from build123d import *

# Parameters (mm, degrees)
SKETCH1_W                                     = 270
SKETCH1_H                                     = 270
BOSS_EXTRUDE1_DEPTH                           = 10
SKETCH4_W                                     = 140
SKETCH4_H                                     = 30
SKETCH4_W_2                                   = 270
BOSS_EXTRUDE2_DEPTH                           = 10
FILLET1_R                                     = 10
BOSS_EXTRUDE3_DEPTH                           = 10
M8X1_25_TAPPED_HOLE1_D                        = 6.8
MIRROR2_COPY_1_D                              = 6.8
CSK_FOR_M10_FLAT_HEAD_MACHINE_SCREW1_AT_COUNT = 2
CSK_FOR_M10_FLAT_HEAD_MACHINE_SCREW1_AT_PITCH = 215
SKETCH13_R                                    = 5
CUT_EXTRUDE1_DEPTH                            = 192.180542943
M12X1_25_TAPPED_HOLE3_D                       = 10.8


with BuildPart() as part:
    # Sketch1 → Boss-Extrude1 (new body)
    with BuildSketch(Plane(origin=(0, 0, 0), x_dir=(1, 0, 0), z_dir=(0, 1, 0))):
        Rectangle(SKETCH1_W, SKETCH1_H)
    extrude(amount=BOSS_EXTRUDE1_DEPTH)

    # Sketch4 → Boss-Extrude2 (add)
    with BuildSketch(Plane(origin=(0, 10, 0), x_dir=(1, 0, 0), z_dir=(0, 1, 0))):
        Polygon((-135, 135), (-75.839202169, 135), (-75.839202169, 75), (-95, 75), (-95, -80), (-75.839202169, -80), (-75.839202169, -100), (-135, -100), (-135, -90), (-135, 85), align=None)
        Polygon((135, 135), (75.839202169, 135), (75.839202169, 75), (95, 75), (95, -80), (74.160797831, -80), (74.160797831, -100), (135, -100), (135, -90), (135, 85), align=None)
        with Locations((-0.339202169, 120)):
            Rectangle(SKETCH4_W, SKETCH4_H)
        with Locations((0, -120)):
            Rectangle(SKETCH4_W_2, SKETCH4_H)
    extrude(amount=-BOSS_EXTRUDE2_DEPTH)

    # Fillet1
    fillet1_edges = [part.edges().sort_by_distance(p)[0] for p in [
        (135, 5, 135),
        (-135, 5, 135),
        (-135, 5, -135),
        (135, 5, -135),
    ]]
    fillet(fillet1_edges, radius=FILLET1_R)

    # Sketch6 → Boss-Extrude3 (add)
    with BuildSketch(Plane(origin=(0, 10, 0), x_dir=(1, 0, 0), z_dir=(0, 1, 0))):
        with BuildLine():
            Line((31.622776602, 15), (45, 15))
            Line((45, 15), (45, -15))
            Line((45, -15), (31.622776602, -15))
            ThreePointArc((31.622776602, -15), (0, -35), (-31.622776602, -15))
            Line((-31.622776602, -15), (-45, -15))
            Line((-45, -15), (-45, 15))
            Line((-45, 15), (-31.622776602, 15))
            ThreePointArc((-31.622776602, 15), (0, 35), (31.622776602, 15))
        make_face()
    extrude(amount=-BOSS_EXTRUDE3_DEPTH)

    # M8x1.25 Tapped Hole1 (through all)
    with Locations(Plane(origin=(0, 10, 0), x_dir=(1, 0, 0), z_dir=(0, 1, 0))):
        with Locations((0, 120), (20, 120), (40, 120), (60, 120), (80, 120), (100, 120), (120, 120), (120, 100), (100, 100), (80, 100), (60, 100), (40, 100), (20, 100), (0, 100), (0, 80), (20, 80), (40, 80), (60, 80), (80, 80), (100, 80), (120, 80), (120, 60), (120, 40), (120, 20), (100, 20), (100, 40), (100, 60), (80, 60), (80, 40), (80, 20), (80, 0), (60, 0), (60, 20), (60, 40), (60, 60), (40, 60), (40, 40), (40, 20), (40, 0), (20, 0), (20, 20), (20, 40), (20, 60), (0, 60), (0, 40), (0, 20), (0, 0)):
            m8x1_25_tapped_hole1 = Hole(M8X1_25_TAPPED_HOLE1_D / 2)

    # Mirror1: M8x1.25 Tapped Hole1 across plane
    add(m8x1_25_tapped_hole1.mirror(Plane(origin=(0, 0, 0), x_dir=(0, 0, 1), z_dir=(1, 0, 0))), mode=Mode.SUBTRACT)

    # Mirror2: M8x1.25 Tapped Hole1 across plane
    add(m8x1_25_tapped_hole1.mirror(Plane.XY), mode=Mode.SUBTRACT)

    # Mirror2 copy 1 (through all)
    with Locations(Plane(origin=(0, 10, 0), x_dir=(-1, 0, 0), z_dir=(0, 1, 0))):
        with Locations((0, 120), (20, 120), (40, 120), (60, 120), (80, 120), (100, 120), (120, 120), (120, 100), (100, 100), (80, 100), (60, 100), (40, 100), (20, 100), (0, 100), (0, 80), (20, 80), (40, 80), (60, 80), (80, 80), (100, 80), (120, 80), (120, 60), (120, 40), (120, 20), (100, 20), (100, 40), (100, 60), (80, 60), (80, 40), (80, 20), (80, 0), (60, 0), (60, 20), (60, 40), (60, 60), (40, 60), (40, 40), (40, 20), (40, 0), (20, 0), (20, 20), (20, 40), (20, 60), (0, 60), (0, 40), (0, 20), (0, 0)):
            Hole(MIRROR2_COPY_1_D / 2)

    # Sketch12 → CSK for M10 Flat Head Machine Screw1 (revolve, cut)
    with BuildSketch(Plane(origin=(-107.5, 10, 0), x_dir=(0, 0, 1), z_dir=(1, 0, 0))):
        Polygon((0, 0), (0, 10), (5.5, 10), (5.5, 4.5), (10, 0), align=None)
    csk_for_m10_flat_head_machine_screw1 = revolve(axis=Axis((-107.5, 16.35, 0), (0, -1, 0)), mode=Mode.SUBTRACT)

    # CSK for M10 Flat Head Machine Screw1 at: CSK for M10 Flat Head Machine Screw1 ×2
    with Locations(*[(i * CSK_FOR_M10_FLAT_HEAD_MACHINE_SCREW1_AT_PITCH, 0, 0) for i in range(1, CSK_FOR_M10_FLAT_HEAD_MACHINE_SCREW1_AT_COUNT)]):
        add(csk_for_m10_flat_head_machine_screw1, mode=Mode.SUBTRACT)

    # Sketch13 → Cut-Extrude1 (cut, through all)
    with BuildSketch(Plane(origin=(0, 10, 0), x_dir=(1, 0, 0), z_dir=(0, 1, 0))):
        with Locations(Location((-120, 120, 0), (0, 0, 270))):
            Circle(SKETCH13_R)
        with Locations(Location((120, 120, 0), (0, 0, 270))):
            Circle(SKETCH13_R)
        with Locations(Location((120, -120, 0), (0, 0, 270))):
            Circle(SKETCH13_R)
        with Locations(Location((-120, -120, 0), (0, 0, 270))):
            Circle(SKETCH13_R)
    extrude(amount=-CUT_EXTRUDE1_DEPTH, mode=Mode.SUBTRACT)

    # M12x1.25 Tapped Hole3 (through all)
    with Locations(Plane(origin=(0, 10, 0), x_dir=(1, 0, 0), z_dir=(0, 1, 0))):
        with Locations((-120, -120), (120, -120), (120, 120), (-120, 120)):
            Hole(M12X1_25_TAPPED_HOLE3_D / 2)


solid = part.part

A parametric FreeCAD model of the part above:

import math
import FreeCAD as App
import Part
import Sketcher

V = App.Vector


def edges_at(feature, points):
    """Names of the edges that pass closest to the given points."""
    edges = feature.Shape.Edges
    near = lambda p: min(range(len(edges)), key=lambda i: edges[i].distToShape(Part.Vertex(*p))[0])
    return sorted({f"Edge{near(p) + 1}" for p in points})


def add_polygon(sketch, points):
    """Adds a closed chain of lines whose ends are joined by coincident constraints."""
    first, n = sketch.GeometryCount, len(points)
    for a, b in zip(points, points[1:] + points[:1]):
        sketch.addGeometry(Part.LineSegment(App.Vector(*a, 0), App.Vector(*b, 0)), False)
    for i in range(n):
        sketch.addConstraint(Sketcher.Constraint("Coincident", first + i, 2, first + (i + 1) % n, 1))

doc = App.newDocument("Part")
body = doc.addObject("PartDesign::Body", "Body")

# Sketch on XZ plane
sketch1 = body.newObject("Sketcher::SketchObject", "Sketch")
sketch1.AttachmentSupport = (doc.getObject("XZ_Plane"), [""])
sketch1.MapMode = "FlatFace"
add_polygon(sketch1, [(-135, -135), (-135, 135), (135, 135), (135, -135)])  # lines 0-3
sketch1.addConstraint([
    Sketcher.Constraint("Vertical", 0),
    Sketcher.Constraint("Horizontal", 1),
    Sketcher.Constraint("Vertical", 2),
    Sketcher.Constraint("Horizontal", 3),
    Sketcher.Constraint("Symmetric", 0, 2, 2, 2, -1, 1),
    Sketcher.Constraint("Equal", 3, 0),
    Sketcher.Constraint("DistanceX", 1, 1, 1, 2, 270.0),
])
pad1 = body.newObject("PartDesign::Pad", "Pad")
pad1.Profile = sketch1
pad1.Length = 10
pad1.Reversed = True

# Sketch on XZ plane
sketch2 = body.newObject("Sketcher::SketchObject", "Sketch001")
sketch2.AttachmentSupport = (doc.getObject("XZ_Plane"), [""])
sketch2.MapMode = "FlatFace"
sketch2.AttachmentOffset = App.Placement(V(0, 0, -10), App.Rotation())
add_polygon(sketch2, [(-76, -135), (-135, -135), (-135, 100), (-76, 100), (-76, 80), (-95, 80), (-95, -75), (-76, -75)])  # lines 0-7
add_polygon(sketch2, [(135, -135), (76, -135), (76, -75), (95, -75), (95, 80), (74, 80), (74, 100), (135, 100)])  # lines 8-15
add_polygon(sketch2, [(-70, -135), (-70, -105), (70, -105), (70, -135)])  # lines 16-19
add_polygon(sketch2, [(-135, 105), (-135, 135), (135, 135), (135, 105)])  # lines 20-23
sketch2.addConstraint([
    Sketcher.Constraint("Horizontal", 0),
    Sketcher.Constraint("Vertical", 1),
    Sketcher.Constraint("Horizontal", 2),
    Sketcher.Constraint("Vertical", 3),
    Sketcher.Constraint("Horizontal", 4),
    Sketcher.Constraint("Vertical", 5),
    Sketcher.Constraint("Horizontal", 6),
    Sketcher.Constraint("Vertical", 7),
    Sketcher.Constraint("Horizontal", 8),
    Sketcher.Constraint("Vertical", 9),
    Sketcher.Constraint("Horizontal", 10),
    Sketcher.Constraint("Vertical", 11),
    Sketcher.Constraint("Horizontal", 12),
    Sketcher.Constraint("Vertical", 13),
    Sketcher.Constraint("Horizontal", 14),
    Sketcher.Constraint("Vertical", 15),
    Sketcher.Constraint("Vertical", 16),
    Sketcher.Constraint("Horizontal", 17),
    Sketcher.Constraint("Vertical", 18),
    Sketcher.Constraint("Horizontal", 19),
    Sketcher.Constraint("Vertical", 20),
    Sketcher.Constraint("Horizontal", 21),
    Sketcher.Constraint("Vertical", 22),
    Sketcher.Constraint("Horizontal", 23),
    Sketcher.Constraint("Symmetric", 15, 2, 20, 2, -1, 1),
    Sketcher.Constraint("Symmetric", 0, 2, 21, 2, -1, 1),
    Sketcher.Constraint("Symmetric", 6, 2, 9, 2, -2),
    Sketcher.Constraint("Symmetric", 4, 2, 11, 2, -2),
    Sketcher.Constraint("Symmetric", 1, 2, 14, 2, -2),
    Sketcher.Constraint("Horizontal", 15, 2, 18, 2),
    Sketcher.Constraint("Vertical", 3, 2, 6, 2),
    Sketcher.Constraint("Equal", 18, 20),
    Sketcher.Constraint("DistanceX", 17, 1, 17, 2, 140.0),
    Sketcher.Constraint("DistanceX", 21, 1, 21, 2, 270.0),
    Sketcher.Constraint("DistanceY", 1, 1, 1, 2, 235.0),
    Sketcher.Constraint("DistanceY", 3, 2, 3, 1, 20.0),
    Sketcher.Constraint("DistanceY", 5, 2, 5, 1, 155.0),
    Sketcher.Constraint("DistanceY", 16, 1, 16, 2, 30.0),
    Sketcher.Constraint("DistanceY", 0, 2, -1, 1, 135.0),
    Sketcher.Constraint("DistanceX", 4, 2, -1, 1, 95.0),
    Sketcher.Constraint("DistanceX", 3, 2, 12, 2, 150.0),
    Sketcher.Constraint("DistanceX", 6, 2, 16, 2, 5.5),
    Sketcher.Constraint("DistanceX", 0, 2, 0, 1, 59.160798),
])
pad2 = body.newObject("PartDesign::Pad", "Pad001")
pad2.Profile = sketch2
pad2.Length = 10
doc.recompute()

fillet = body.newObject("PartDesign::Fillet", "Fillet")
fillet.Base = (pad2, edges_at(pad2, [
    (135, 5, 135),
    (-135, 5, 135),
    (-135, 5, -135),
    (135, 5, -135),
]))
fillet.Radius = 10

# Sketch on XZ plane
sketch3 = body.newObject("Sketcher::SketchObject", "Sketch002")
sketch3.AttachmentSupport = (doc.getObject("XZ_Plane"), [""])
sketch3.MapMode = "FlatFace"
sketch3.AttachmentOffset = App.Placement(V(0, 0, -10), App.Rotation())
sketch3.addGeometry([
    Part.LineSegment(V(45, -15, 0), V(32, -15, 0)),  # 0
    Part.ArcOfCircle(Part.Circle(V(0, 0, 0), V(0, 0, 1), 35), math.radians(-155), math.radians(-25)),  # 1
    Part.LineSegment(V(-32, -15, 0), V(-45, -15, 0)),  # 2
    Part.LineSegment(V(-45, -15, 0), V(-45, 15, 0)),  # 3
    Part.LineSegment(V(-45, 15, 0), V(-32, 15, 0)),  # 4
    Part.ArcOfCircle(Part.Circle(V(0, 0, 0), V(0, 0, 1), 35), math.radians(25), math.radians(155)),  # 5
    Part.LineSegment(V(32, 15, 0), V(45, 15, 0)),  # 6
    Part.LineSegment(V(45, 15, 0), V(45, -15, 0)),  # 7
], False)
sketch3.addConstraint([
    Sketcher.Constraint("Coincident", 0, 2, 1, 2),
    Sketcher.Constraint("Coincident", 1, 1, 2, 1),
    Sketcher.Constraint("Coincident", 2, 2, 3, 1),
    Sketcher.Constraint("Coincident", 3, 2, 4, 1),
    Sketcher.Constraint("Coincident", 4, 2, 5, 2),
    Sketcher.Constraint("Coincident", 5, 1, 6, 1),
    Sketcher.Constraint("Coincident", 6, 2, 7, 1),
    Sketcher.Constraint("Coincident", 7, 2, 0, 1),
    Sketcher.Constraint("Horizontal", 0),
    Sketcher.Constraint("Horizontal", 2),
    Sketcher.Constraint("Vertical", 3),
    Sketcher.Constraint("Horizontal", 4),
    Sketcher.Constraint("Horizontal", 6),
    Sketcher.Constraint("Vertical", 7),
    Sketcher.Constraint("Coincident", 1, 3, -1, 1),
    Sketcher.Constraint("Coincident", 5, 3, -1, 1),
    Sketcher.Constraint("Equal", 1, 5),
    Sketcher.Constraint("Symmetric", 2, 2, 6, 2, -1, 1),
    Sketcher.Constraint("Horizontal", 0, 2, 1, 1),
    Sketcher.Constraint("Horizontal", 4, 2, 5, 1),
    Sketcher.Constraint("Radius", 1, 35.0),
    Sketcher.Constraint("DistanceY", 3, 1, 3, 2, 30.0),
    Sketcher.Constraint("DistanceX", 2, 2, -1, 1, 45.0),
])
pad3 = body.newObject("PartDesign::Pad", "Pad002")
pad3.Profile = sketch3
pad3.Length = 10

# Sketch on XZ plane
sketch4 = body.newObject("Sketcher::SketchObject", "Sketch003")
sketch4.AttachmentSupport = (doc.getObject("XZ_Plane"), [""])
sketch4.MapMode = "FlatFace"
sketch4.AttachmentOffset = App.Placement(V(0, 0, -10), App.Rotation())
sketch4.addGeometry([
    Part.Circle(V(0, -120, 0), V(0, 0, 1), 3.4),  # 0
    Part.Circle(V(20, -120, 0), V(0, 0, 1), 3.4),  # 1
    Part.Circle(V(40, -120, 0), V(0, 0, 1), 3.4),  # 2
    Part.Circle(V(60, -120, 0), V(0, 0, 1), 3.4),  # 3
    Part.Circle(V(80, -120, 0), V(0, 0, 1), 3.4),  # 4
    Part.Circle(V(100, -120, 0), V(0, 0, 1), 3.4),  # 5
    Part.Circle(V(120, -120, 0), V(0, 0, 1), 3.4),  # 6
    Part.Circle(V(120, -100, 0), V(0, 0, 1), 3.4),  # 7
    Part.Circle(V(100, -100, 0), V(0, 0, 1), 3.4),  # 8
    Part.Circle(V(80, -100, 0), V(0, 0, 1), 3.4),  # 9
    Part.Circle(V(60, -100, 0), V(0, 0, 1), 3.4),  # 10
    Part.Circle(V(40, -100, 0), V(0, 0, 1), 3.4),  # 11
    Part.Circle(V(20, -100, 0), V(0, 0, 1), 3.4),  # 12
    Part.Circle(V(0, -100, 0), V(0, 0, 1), 3.4),  # 13
    Part.Circle(V(0, -80, 0), V(0, 0, 1), 3.4),  # 14
    Part.Circle(V(20, -80, 0), V(0, 0, 1), 3.4),  # 15
    Part.Circle(V(40, -80, 0), V(0, 0, 1), 3.4),  # 16
    Part.Circle(V(60, -80, 0), V(0, 0, 1), 3.4),  # 17
    Part.Circle(V(80, -80, 0), V(0, 0, 1), 3.4),  # 18
    Part.Circle(V(100, -80, 0), V(0, 0, 1), 3.4),  # 19
    Part.Circle(V(120, -80, 0), V(0, 0, 1), 3.4),  # 20
    Part.Circle(V(120, -60, 0), V(0, 0, 1), 3.4),  # 21
    Part.Circle(V(120, -40, 0), V(0, 0, 1), 3.4),  # 22
    Part.Circle(V(120, -20, 0), V(0, 0, 1), 3.4),  # 23
    Part.Circle(V(100, -20, 0), V(0, 0, 1), 3.4),  # 24
    Part.Circle(V(100, -40, 0), V(0, 0, 1), 3.4),  # 25
    Part.Circle(V(100, -60, 0), V(0, 0, 1), 3.4),  # 26
    Part.Circle(V(80, -60, 0), V(0, 0, 1), 3.4),  # 27
    Part.Circle(V(80, -40, 0), V(0, 0, 1), 3.4),  # 28
    Part.Circle(V(80, -20, 0), V(0, 0, 1), 3.4),  # 29
    Part.Circle(V(80, 0, 0), V(0, 0, 1), 3.4),  # 30
    Part.Circle(V(60, 0, 0), V(0, 0, 1), 3.4),  # 31
    Part.Circle(V(60, -20, 0), V(0, 0, 1), 3.4),  # 32
    Part.Circle(V(60, -40, 0), V(0, 0, 1), 3.4),  # 33
    Part.Circle(V(60, -60, 0), V(0, 0, 1), 3.4),  # 34
    Part.Circle(V(40, -60, 0), V(0, 0, 1), 3.4),  # 35
    Part.Circle(V(40, -40, 0), V(0, 0, 1), 3.4),  # 36
    Part.Circle(V(40, -20, 0), V(0, 0, 1), 3.4),  # 37
    Part.Circle(V(40, 0, 0), V(0, 0, 1), 3.4),  # 38
    Part.Circle(V(20, 0, 0), V(0, 0, 1), 3.4),  # 39
    Part.Circle(V(20, -20, 0), V(0, 0, 1), 3.4),  # 40
    Part.Circle(V(20, -40, 0), V(0, 0, 1), 3.4),  # 41
    Part.Circle(V(20, -60, 0), V(0, 0, 1), 3.4),  # 42
    Part.Circle(V(0, -60, 0), V(0, 0, 1), 3.4),  # 43
    Part.Circle(V(0, -40, 0), V(0, 0, 1), 3.4),  # 44
    Part.Circle(V(0, -20, 0), V(0, 0, 1), 3.4),  # 45
    Part.Circle(V(0, 0, 0), V(0, 0, 1), 3.4),  # 46
], False)
sketch4.addConstraint([
    Sketcher.Constraint("Coincident", 46, 3, -1, 1),
    Sketcher.Constraint("Equal", 0, 1),
    Sketcher.Constraint("Equal", 1, 2),
    Sketcher.Constraint("Equal", 2, 3),
    Sketcher.Constraint("Equal", 3, 4),
    Sketcher.Constraint("Equal", 4, 5),
    Sketcher.Constraint("Equal", 5, 6),
    Sketcher.Constraint("Equal", 6, 7),
    Sketcher.Constraint("Equal", 7, 8),
    Sketcher.Constraint("Equal", 8, 9),
    Sketcher.Constraint("Equal", 9, 10),
    Sketcher.Constraint("Equal", 10, 11),
    Sketcher.Constraint("Equal", 11, 12),
    Sketcher.Constraint("Equal", 12, 13),
    Sketcher.Constraint("Equal", 13, 14),
    Sketcher.Constraint("Equal", 14, 15),
    Sketcher.Constraint("Equal", 15, 16),
    Sketcher.Constraint("Equal", 16, 17),
    Sketcher.Constraint("Equal", 17, 18),
    Sketcher.Constraint("Equal", 18, 19),
    Sketcher.Constraint("Equal", 19, 20),
    Sketcher.Constraint("Equal", 20, 21),
    Sketcher.Constraint("Equal", 21, 22),
    Sketcher.Constraint("Equal", 22, 23),
    Sketcher.Constraint("Equal", 23, 24),
    Sketcher.Constraint("Equal", 24, 25),
    Sketcher.Constraint("Equal", 25, 26),
    Sketcher.Constraint("Equal", 26, 27),
    Sketcher.Constraint("Equal", 27, 28),
    Sketcher.Constraint("Equal", 28, 29),
    Sketcher.Constraint("Equal", 29, 30),
    Sketcher.Constraint("Equal", 30, 31),
    Sketcher.Constraint("Equal", 31, 32),
    Sketcher.Constraint("Equal", 32, 33),
    Sketcher.Constraint("Equal", 33, 34),
    Sketcher.Constraint("Equal", 34, 35),
    Sketcher.Constraint("Equal", 35, 36),
    Sketcher.Constraint("Equal", 36, 37),
    Sketcher.Constraint("Equal", 37, 38),
    Sketcher.Constraint("Equal", 38, 39),
    Sketcher.Constraint("Equal", 39, 40),
    Sketcher.Constraint("Equal", 40, 41),
    Sketcher.Constraint("Equal", 41, 42),
    Sketcher.Constraint("Equal", 42, 43),
    Sketcher.Constraint("Equal", 43, 44),
    Sketcher.Constraint("Equal", 44, 45),
    Sketcher.Constraint("Equal", 45, 46),
    Sketcher.Constraint("PointOnObject", 0, 3, -2),
    Sketcher.Constraint("PointOnObject", 13, 3, -2),
    Sketcher.Constraint("PointOnObject", 14, 3, -2),
    Sketcher.Constraint("PointOnObject", 30, 3, -1),
    Sketcher.Constraint("PointOnObject", 31, 3, -1),
    Sketcher.Constraint("PointOnObject", 38, 3, -1),
    Sketcher.Constraint("PointOnObject", 39, 3, -1),
    Sketcher.Constraint("PointOnObject", 43, 3, -2),
    Sketcher.Constraint("PointOnObject", 44, 3, -2),
    Sketcher.Constraint("PointOnObject", 45, 3, -2),
    Sketcher.Constraint("Horizontal", 0, 3, 1, 3),
    Sketcher.Constraint("Horizontal", 1, 3, 2, 3),
    Sketcher.Constraint("Horizontal", 2, 3, 3, 3),
    Sketcher.Constraint("Horizontal", 3, 3, 4, 3),
    Sketcher.Constraint("Horizontal", 4, 3, 5, 3),
    Sketcher.Constraint("Horizontal", 5, 3, 6, 3),
    Sketcher.Constraint("Horizontal", 7, 3, 8, 3),
    Sketcher.Constraint("Horizontal", 8, 3, 9, 3),
    Sketcher.Constraint("Horizontal", 9, 3, 10, 3),
    Sketcher.Constraint("Horizontal", 10, 3, 11, 3),
    Sketcher.Constraint("Horizontal", 11, 3, 12, 3),
    Sketcher.Constraint("Horizontal", 12, 3, 13, 3),
    Sketcher.Constraint("Horizontal", 14, 3, 15, 3),
    Sketcher.Constraint("Horizontal", 15, 3, 16, 3),
    Sketcher.Constraint("Horizontal", 16, 3, 17, 3),
    Sketcher.Constraint("Horizontal", 17, 3, 18, 3),
    Sketcher.Constraint("Horizontal", 18, 3, 19, 3),
    Sketcher.Constraint("Horizontal", 19, 3, 20, 3),
    Sketcher.Constraint("Horizontal", 23, 3, 24, 3),
    Sketcher.Constraint("Horizontal", 22, 3, 25, 3),
    Sketcher.Constraint("Horizontal", 21, 3, 26, 3),
    Sketcher.Constraint("Horizontal", 26, 3, 27, 3),
    Sketcher.Constraint("Horizontal", 25, 3, 28, 3),
    Sketcher.Constraint("Horizontal", 24, 3, 29, 3),
    Sketcher.Constraint("Horizontal", 29, 3, 32, 3),
    Sketcher.Constraint("Horizontal", 28, 3, 33, 3),
    Sketcher.Constraint("Horizontal", 27, 3, 34, 3),
    Sketcher.Constraint("Horizontal", 34, 3, 35, 3),
    Sketcher.Constraint("Horizontal", 33, 3, 36, 3),
    Sketcher.Constraint("Horizontal", 32, 3, 37, 3),
    Sketcher.Constraint("Horizontal", 37, 3, 40, 3),
    Sketcher.Constraint("Horizontal", 36, 3, 41, 3),
    Sketcher.Constraint("Horizontal", 35, 3, 42, 3),
    Sketcher.Constraint("Horizontal", 42, 3, 43, 3),
    Sketcher.Constraint("Horizontal", 41, 3, 44, 3),
    Sketcher.Constraint("Horizontal", 40, 3, 45, 3),
    Sketcher.Constraint("Vertical", 6, 3, 7, 3),
    Sketcher.Constraint("Vertical", 5, 3, 8, 3),
    Sketcher.Constraint("Vertical", 4, 3, 9, 3),
    Sketcher.Constraint("Vertical", 3, 3, 10, 3),
    Sketcher.Constraint("Vertical", 2, 3, 11, 3),
    Sketcher.Constraint("Vertical", 1, 3, 12, 3),
    Sketcher.Constraint("Vertical", 12, 3, 15, 3),
    Sketcher.Constraint("Vertical", 11, 3, 16, 3),
    Sketcher.Constraint("Vertical", 10, 3, 17, 3),
    Sketcher.Constraint("Vertical", 9, 3, 18, 3),
    Sketcher.Constraint("Vertical", 8, 3, 19, 3),
    Sketcher.Constraint("Vertical", 7, 3, 20, 3),
    Sketcher.Constraint("Vertical", 20, 3, 21, 3),
    Sketcher.Constraint("Vertical", 21, 3, 22, 3),
    Sketcher.Constraint("Vertical", 22, 3, 23, 3),
    Sketcher.Constraint("Vertical", 19, 3, 24, 3),
    Sketcher.Constraint("Vertical", 24, 3, 25, 3),
    Sketcher.Constraint("Vertical", 25, 3, 26, 3),
    Sketcher.Constraint("Vertical", 18, 3, 27, 3),
    Sketcher.Constraint("Vertical", 27, 3, 28, 3),
    Sketcher.Constraint("Vertical", 28, 3, 29, 3),
    Sketcher.Constraint("Vertical", 29, 3, 30, 3),
    Sketcher.Constraint("Vertical", 17, 3, 31, 3),
    Sketcher.Constraint("Vertical", 31, 3, 32, 3),
    Sketcher.Constraint("Vertical", 32, 3, 33, 3),
    Sketcher.Constraint("Vertical", 33, 3, 34, 3),
    Sketcher.Constraint("Vertical", 16, 3, 35, 3),
    Sketcher.Constraint("Vertical", 35, 3, 36, 3),
    Sketcher.Constraint("Vertical", 36, 3, 37, 3),
    Sketcher.Constraint("Vertical", 37, 3, 38, 3),
    Sketcher.Constraint("Vertical", 15, 3, 39, 3),
    Sketcher.Constraint("Vertical", 39, 3, 40, 3),
    Sketcher.Constraint("Vertical", 40, 3, 41, 3),
    Sketcher.Constraint("Vertical", 41, 3, 42, 3),
    Sketcher.Constraint("Diameter", 0, 6.8),
    Sketcher.Constraint("DistanceY", 0, 3, -1, 1, 120.0),
    Sketcher.Constraint("DistanceX", -1, 1, 1, 3, 20.0),
    Sketcher.Constraint("DistanceX", -1, 1, 2, 3, 40.0),
    Sketcher.Constraint("DistanceX", -1, 1, 3, 3, 60.0),
    Sketcher.Constraint("DistanceX", -1, 1, 4, 3, 80.0),
    Sketcher.Constraint("DistanceX", -1, 1, 5, 3, 100.0),
    Sketcher.Constraint("DistanceX", -1, 1, 6, 3, 120.0),
    Sketcher.Constraint("DistanceY", 7, 3, -1, 1, 100.0),
    Sketcher.Constraint("DistanceY", 14, 3, -1, 1, 80.0),
    Sketcher.Constraint("DistanceY", 21, 3, -1, 1, 60.0),
    Sketcher.Constraint("DistanceY", 22, 3, -1, 1, 40.0),
    Sketcher.Constraint("DistanceY", 23, 3, -1, 1, 20.0),
])
doc.recompute()
hole = body.newObject("PartDesign::Hole", "Hole")
hole.Profile = sketch4
hole.ThreadType = "None"
hole.Diameter = 6.8
hole.DepthType = "ThroughAll"
hole.Reversed = True
doc.recompute()

mirrored = body.newObject("PartDesign::Mirrored", "Mirrored")
mirrored.Originals = [hole]
mirrored.MirrorPlane = (doc.getObject("YZ_Plane"), [""])
body.Tip = mirrored
doc.recompute()

mirrored2 = body.newObject("PartDesign::Mirrored", "Mirrored001")
mirrored2.Originals = [hole]
mirrored2.MirrorPlane = (doc.getObject("XY_Plane"), [""])
body.Tip = mirrored2

# Sketch on XZ plane
sketch5 = body.newObject("Sketcher::SketchObject", "Sketch004")
sketch5.AttachmentSupport = (doc.getObject("XZ_Plane"), [""])
sketch5.MapMode = "FlatFace"
sketch5.AttachmentOffset = App.Placement(V(0, 0, -10), App.Rotation())
sketch5.addGeometry([
    Part.Circle(V(0, 120, 0), V(0, 0, 1), 3.4),  # 0
    Part.Circle(V(-20, 120, 0), V(0, 0, 1), 3.4),  # 1
    Part.Circle(V(-40, 120, 0), V(0, 0, 1), 3.4),  # 2
    Part.Circle(V(-60, 120, 0), V(0, 0, 1), 3.4),  # 3
    Part.Circle(V(-80, 120, 0), V(0, 0, 1), 3.4),  # 4
    Part.Circle(V(-100, 120, 0), V(0, 0, 1), 3.4),  # 5
    Part.Circle(V(-120, 120, 0), V(0, 0, 1), 3.4),  # 6
    Part.Circle(V(-120, 100, 0), V(0, 0, 1), 3.4),  # 7
    Part.Circle(V(-100, 100, 0), V(0, 0, 1), 3.4),  # 8
    Part.Circle(V(-80, 100, 0), V(0, 0, 1), 3.4),  # 9
    Part.Circle(V(-60, 100, 0), V(0, 0, 1), 3.4),  # 10
    Part.Circle(V(-40, 100, 0), V(0, 0, 1), 3.4),  # 11
    Part.Circle(V(-20, 100, 0), V(0, 0, 1), 3.4),  # 12
    Part.Circle(V(0, 100, 0), V(0, 0, 1), 3.4),  # 13
    Part.Circle(V(0, 80, 0), V(0, 0, 1), 3.4),  # 14
    Part.Circle(V(-20, 80, 0), V(0, 0, 1), 3.4),  # 15
    Part.Circle(V(-40, 80, 0), V(0, 0, 1), 3.4),  # 16
    Part.Circle(V(-60, 80, 0), V(0, 0, 1), 3.4),  # 17
    Part.Circle(V(-80, 80, 0), V(0, 0, 1), 3.4),  # 18
    Part.Circle(V(-100, 80, 0), V(0, 0, 1), 3.4),  # 19
    Part.Circle(V(-120, 80, 0), V(0, 0, 1), 3.4),  # 20
    Part.Circle(V(-120, 60, 0), V(0, 0, 1), 3.4),  # 21
    Part.Circle(V(-120, 40, 0), V(0, 0, 1), 3.4),  # 22
    Part.Circle(V(-120, 20, 0), V(0, 0, 1), 3.4),  # 23
    Part.Circle(V(-100, 20, 0), V(0, 0, 1), 3.4),  # 24
    Part.Circle(V(-100, 40, 0), V(0, 0, 1), 3.4),  # 25
    Part.Circle(V(-100, 60, 0), V(0, 0, 1), 3.4),  # 26
    Part.Circle(V(-80, 60, 0), V(0, 0, 1), 3.4),  # 27
    Part.Circle(V(-80, 40, 0), V(0, 0, 1), 3.4),  # 28
    Part.Circle(V(-80, 20, 0), V(0, 0, 1), 3.4),  # 29
    Part.Circle(V(-80, 0, 0), V(0, 0, 1), 3.4),  # 30
    Part.Circle(V(-60, 0, 0), V(0, 0, 1), 3.4),  # 31
    Part.Circle(V(-60, 20, 0), V(0, 0, 1), 3.4),  # 32
    Part.Circle(V(-60, 40, 0), V(0, 0, 1), 3.4),  # 33
    Part.Circle(V(-60, 60, 0), V(0, 0, 1), 3.4),  # 34
    Part.Circle(V(-40, 60, 0), V(0, 0, 1), 3.4),  # 35
    Part.Circle(V(-40, 40, 0), V(0, 0, 1), 3.4),  # 36
    Part.Circle(V(-40, 20, 0), V(0, 0, 1), 3.4),  # 37
    Part.Circle(V(-40, 0, 0), V(0, 0, 1), 3.4),  # 38
    Part.Circle(V(-20, 0, 0), V(0, 0, 1), 3.4),  # 39
    Part.Circle(V(-20, 20, 0), V(0, 0, 1), 3.4),  # 40
    Part.Circle(V(-20, 40, 0), V(0, 0, 1), 3.4),  # 41
    Part.Circle(V(-20, 60, 0), V(0, 0, 1), 3.4),  # 42
    Part.Circle(V(0, 60, 0), V(0, 0, 1), 3.4),  # 43
    Part.Circle(V(0, 40, 0), V(0, 0, 1), 3.4),  # 44
    Part.Circle(V(0, 20, 0), V(0, 0, 1), 3.4),  # 45
    Part.Circle(V(0, 0, 0), V(0, 0, 1), 3.4),  # 46
], False)
sketch5.addConstraint([
    Sketcher.Constraint("Coincident", 46, 3, -1, 1),
    Sketcher.Constraint("Equal", 0, 1),
    Sketcher.Constraint("Equal", 1, 2),
    Sketcher.Constraint("Equal", 2, 3),
    Sketcher.Constraint("Equal", 3, 4),
    Sketcher.Constraint("Equal", 4, 5),
    Sketcher.Constraint("Equal", 5, 6),
    Sketcher.Constraint("Equal", 6, 7),
    Sketcher.Constraint("Equal", 7, 8),
    Sketcher.Constraint("Equal", 8, 9),
    Sketcher.Constraint("Equal", 9, 10),
    Sketcher.Constraint("Equal", 10, 11),
    Sketcher.Constraint("Equal", 11, 12),
    Sketcher.Constraint("Equal", 12, 13),
    Sketcher.Constraint("Equal", 13, 14),
    Sketcher.Constraint("Equal", 14, 15),
    Sketcher.Constraint("Equal", 15, 16),
    Sketcher.Constraint("Equal", 16, 17),
    Sketcher.Constraint("Equal", 17, 18),
    Sketcher.Constraint("Equal", 18, 19),
    Sketcher.Constraint("Equal", 19, 20),
    Sketcher.Constraint("Equal", 20, 21),
    Sketcher.Constraint("Equal", 21, 22),
    Sketcher.Constraint("Equal", 22, 23),
    Sketcher.Constraint("Equal", 23, 24),
    Sketcher.Constraint("Equal", 24, 25),
    Sketcher.Constraint("Equal", 25, 26),
    Sketcher.Constraint("Equal", 26, 27),
    Sketcher.Constraint("Equal", 27, 28),
    Sketcher.Constraint("Equal", 28, 29),
    Sketcher.Constraint("Equal", 29, 30),
    Sketcher.Constraint("Equal", 30, 31),
    Sketcher.Constraint("Equal", 31, 32),
    Sketcher.Constraint("Equal", 32, 33),
    Sketcher.Constraint("Equal", 33, 34),
    Sketcher.Constraint("Equal", 34, 35),
    Sketcher.Constraint("Equal", 35, 36),
    Sketcher.Constraint("Equal", 36, 37),
    Sketcher.Constraint("Equal", 37, 38),
    Sketcher.Constraint("Equal", 38, 39),
    Sketcher.Constraint("Equal", 39, 40),
    Sketcher.Constraint("Equal", 40, 41),
    Sketcher.Constraint("Equal", 41, 42),
    Sketcher.Constraint("Equal", 42, 43),
    Sketcher.Constraint("Equal", 43, 44),
    Sketcher.Constraint("Equal", 44, 45),
    Sketcher.Constraint("Equal", 45, 46),
    Sketcher.Constraint("PointOnObject", 0, 3, -2),
    Sketcher.Constraint("PointOnObject", 13, 3, -2),
    Sketcher.Constraint("PointOnObject", 14, 3, -2),
    Sketcher.Constraint("PointOnObject", 30, 3, -1),
    Sketcher.Constraint("PointOnObject", 31, 3, -1),
    Sketcher.Constraint("PointOnObject", 38, 3, -1),
    Sketcher.Constraint("PointOnObject", 39, 3, -1),
    Sketcher.Constraint("PointOnObject", 43, 3, -2),
    Sketcher.Constraint("PointOnObject", 44, 3, -2),
    Sketcher.Constraint("PointOnObject", 45, 3, -2),
    Sketcher.Constraint("Horizontal", 0, 3, 1, 3),
    Sketcher.Constraint("Horizontal", 1, 3, 2, 3),
    Sketcher.Constraint("Horizontal", 2, 3, 3, 3),
    Sketcher.Constraint("Horizontal", 3, 3, 4, 3),
    Sketcher.Constraint("Horizontal", 4, 3, 5, 3),
    Sketcher.Constraint("Horizontal", 5, 3, 6, 3),
    Sketcher.Constraint("Horizontal", 7, 3, 8, 3),
    Sketcher.Constraint("Horizontal", 8, 3, 9, 3),
    Sketcher.Constraint("Horizontal", 9, 3, 10, 3),
    Sketcher.Constraint("Horizontal", 10, 3, 11, 3),
    Sketcher.Constraint("Horizontal", 11, 3, 12, 3),
    Sketcher.Constraint("Horizontal", 12, 3, 13, 3),
    Sketcher.Constraint("Horizontal", 14, 3, 15, 3),
    Sketcher.Constraint("Horizontal", 15, 3, 16, 3),
    Sketcher.Constraint("Horizontal", 16, 3, 17, 3),
    Sketcher.Constraint("Horizontal", 17, 3, 18, 3),
    Sketcher.Constraint("Horizontal", 18, 3, 19, 3),
    Sketcher.Constraint("Horizontal", 19, 3, 20, 3),
    Sketcher.Constraint("Horizontal", 23, 3, 24, 3),
    Sketcher.Constraint("Horizontal", 22, 3, 25, 3),
    Sketcher.Constraint("Horizontal", 21, 3, 26, 3),
    Sketcher.Constraint("Horizontal", 26, 3, 27, 3),
    Sketcher.Constraint("Horizontal", 25, 3, 28, 3),
    Sketcher.Constraint("Horizontal", 24, 3, 29, 3),
    Sketcher.Constraint("Horizontal", 29, 3, 32, 3),
    Sketcher.Constraint("Horizontal", 28, 3, 33, 3),
    Sketcher.Constraint("Horizontal", 27, 3, 34, 3),
    Sketcher.Constraint("Horizontal", 34, 3, 35, 3),
    Sketcher.Constraint("Horizontal", 33, 3, 36, 3),
    Sketcher.Constraint("Horizontal", 32, 3, 37, 3),
    Sketcher.Constraint("Horizontal", 37, 3, 40, 3),
    Sketcher.Constraint("Horizontal", 36, 3, 41, 3),
    Sketcher.Constraint("Horizontal", 35, 3, 42, 3),
    Sketcher.Constraint("Horizontal", 42, 3, 43, 3),
    Sketcher.Constraint("Horizontal", 41, 3, 44, 3),
    Sketcher.Constraint("Horizontal", 40, 3, 45, 3),
    Sketcher.Constraint("Vertical", 6, 3, 7, 3),
    Sketcher.Constraint("Vertical", 5, 3, 8, 3),
    Sketcher.Constraint("Vertical", 4, 3, 9, 3),
    Sketcher.Constraint("Vertical", 3, 3, 10, 3),
    Sketcher.Constraint("Vertical", 2, 3, 11, 3),
    Sketcher.Constraint("Vertical", 1, 3, 12, 3),
    Sketcher.Constraint("Vertical", 12, 3, 15, 3),
    Sketcher.Constraint("Vertical", 11, 3, 16, 3),
    Sketcher.Constraint("Vertical", 10, 3, 17, 3),
    Sketcher.Constraint("Vertical", 9, 3, 18, 3),
    Sketcher.Constraint("Vertical", 8, 3, 19, 3),
    Sketcher.Constraint("Vertical", 7, 3, 20, 3),
    Sketcher.Constraint("Vertical", 20, 3, 21, 3),
    Sketcher.Constraint("Vertical", 21, 3, 22, 3),
    Sketcher.Constraint("Vertical", 22, 3, 23, 3),
    Sketcher.Constraint("Vertical", 19, 3, 24, 3),
    Sketcher.Constraint("Vertical", 24, 3, 25, 3),
    Sketcher.Constraint("Vertical", 25, 3, 26, 3),
    Sketcher.Constraint("Vertical", 18, 3, 27, 3),
    Sketcher.Constraint("Vertical", 27, 3, 28, 3),
    Sketcher.Constraint("Vertical", 28, 3, 29, 3),
    Sketcher.Constraint("Vertical", 29, 3, 30, 3),
    Sketcher.Constraint("Vertical", 17, 3, 31, 3),
    Sketcher.Constraint("Vertical", 31, 3, 32, 3),
    Sketcher.Constraint("Vertical", 32, 3, 33, 3),
    Sketcher.Constraint("Vertical", 33, 3, 34, 3),
    Sketcher.Constraint("Vertical", 16, 3, 35, 3),
    Sketcher.Constraint("Vertical", 35, 3, 36, 3),
    Sketcher.Constraint("Vertical", 36, 3, 37, 3),
    Sketcher.Constraint("Vertical", 37, 3, 38, 3),
    Sketcher.Constraint("Vertical", 15, 3, 39, 3),
    Sketcher.Constraint("Vertical", 39, 3, 40, 3),
    Sketcher.Constraint("Vertical", 40, 3, 41, 3),
    Sketcher.Constraint("Vertical", 41, 3, 42, 3),
    Sketcher.Constraint("Diameter", 0, 6.8),
    Sketcher.Constraint("DistanceY", -1, 1, 0, 3, 120.0),
    Sketcher.Constraint("DistanceX", 1, 3, -1, 1, 20.0),
    Sketcher.Constraint("DistanceX", 2, 3, -1, 1, 40.0),
    Sketcher.Constraint("DistanceX", 3, 3, -1, 1, 60.0),
    Sketcher.Constraint("DistanceX", 4, 3, -1, 1, 80.0),
    Sketcher.Constraint("DistanceX", 5, 3, -1, 1, 100.0),
    Sketcher.Constraint("DistanceX", 6, 3, -1, 1, 120.0),
    Sketcher.Constraint("DistanceY", -1, 1, 7, 3, 100.0),
    Sketcher.Constraint("DistanceY", -1, 1, 14, 3, 80.0),
    Sketcher.Constraint("DistanceY", -1, 1, 21, 3, 60.0),
    Sketcher.Constraint("DistanceY", -1, 1, 22, 3, 40.0),
    Sketcher.Constraint("DistanceY", -1, 1, 23, 3, 20.0),
])
doc.recompute()
hole2 = body.newObject("PartDesign::Hole", "Hole001")
hole2.Profile = sketch5
hole2.ThreadType = "None"
hole2.Diameter = 6.8
hole2.DepthType = "ThroughAll"
hole2.Reversed = True

# Sketch on YZ plane
sketch6 = body.newObject("Sketcher::SketchObject", "Sketch005")
sketch6.AttachmentSupport = (doc.getObject("YZ_Plane"), [""])
sketch6.MapMode = "FlatFace"
sketch6.AttachmentOffset = App.Placement(V(0, 0, -107.5), App.Rotation())
add_polygon(sketch6, [(0, 0), (10, 0), (10, 10), (6, 6), (0, 6)])  # lines 0-4
sketch6.addConstraint([
    Sketcher.Constraint("Horizontal", 0),
    Sketcher.Constraint("Vertical", 1),
    Sketcher.Constraint("Horizontal", 3),
    Sketcher.Constraint("Vertical", 4),
    Sketcher.Constraint("Coincident", 4, 2, -1, 1),
    Sketcher.Constraint("Equal", 0, 1),
    Sketcher.Constraint("Equal", 3, 4),
    Sketcher.Constraint("DistanceX", 0, 1, 0, 2, 10.0),
    Sketcher.Constraint("DistanceX", 3, 2, 3, 1, 5.5),
])
groove = body.newObject("PartDesign::Groove", "Groove")
groove.Profile = sketch6
groove.ReferenceAxis = (sketch6, ["H_Axis"])
groove.Angle = 360
doc.recompute()

linearpattern = body.newObject("PartDesign::LinearPattern", "LinearPattern")
linearpattern.Originals = [groove]
linearpattern.Direction = (doc.getObject("X_Axis"), [""])
linearpattern.Mode = "offset"
linearpattern.Offset = 215
linearpattern.Occurrences = 2
body.Tip = linearpattern

# Sketch on XZ plane
sketch7 = body.newObject("Sketcher::SketchObject", "Sketch006")
sketch7.AttachmentSupport = (doc.getObject("XZ_Plane"), [""])
sketch7.MapMode = "FlatFace"
sketch7.AttachmentOffset = App.Placement(V(0, 0, -10), App.Rotation())
sketch7.addGeometry([
    Part.Circle(V(-120, -120, 0), V(0, 0, 1), 5),
    Part.Circle(V(120, -120, 0), V(0, 0, 1), 5),
    Part.Circle(V(120, 120, 0), V(0, 0, 1), 5),
    Part.Circle(V(-120, 120, 0), V(0, 0, 1), 5),
], False)
sketch7.addConstraint([
    Sketcher.Constraint("Equal", 0, 1),
    Sketcher.Constraint("Equal", 1, 2),
    Sketcher.Constraint("Equal", 2, 3),
    Sketcher.Constraint("Symmetric", 0, 3, 2, 3, -1, 1),
    Sketcher.Constraint("Symmetric", 1, 3, 3, 3, -1, 1),
    Sketcher.Constraint("Symmetric", 0, 3, 1, 3, -2),
    Sketcher.Constraint("Diameter", 0, 10.0),
    Sketcher.Constraint("DistanceX", 0, 3, -1, 1, 120.0),
    Sketcher.Constraint("DistanceY", 0, 3, -1, 1, 120.0),
])
pocket1 = body.newObject("PartDesign::Pocket", "Pocket")
pocket1.Profile = sketch7
pocket1.Type = "ThroughAll"
pocket1.Reversed = True

# Sketch on XZ plane
sketch8 = body.newObject("Sketcher::SketchObject", "Sketch007")
sketch8.AttachmentSupport = (doc.getObject("XZ_Plane"), [""])
sketch8.MapMode = "FlatFace"
sketch8.AttachmentOffset = App.Placement(V(0, 0, -10), App.Rotation())
sketch8.addGeometry([
    Part.Circle(V(-120, 120, 0), V(0, 0, 1), 5),
    Part.Circle(V(120, 120, 0), V(0, 0, 1), 5),
    Part.Circle(V(120, -120, 0), V(0, 0, 1), 5),
    Part.Circle(V(-120, -120, 0), V(0, 0, 1), 5),
], False)
sketch8.addConstraint([
    Sketcher.Constraint("Equal", 0, 1),
    Sketcher.Constraint("Equal", 1, 2),
    Sketcher.Constraint("Equal", 2, 3),
    Sketcher.Constraint("Symmetric", 0, 3, 2, 3, -1, 1),
    Sketcher.Constraint("Symmetric", 1, 3, 3, 3, -1, 1),
    Sketcher.Constraint("Symmetric", 0, 3, 1, 3, -2),
    Sketcher.Constraint("Diameter", 0, 10.8),
    Sketcher.Constraint("DistanceX", 0, 3, -1, 1, 120.0),
    Sketcher.Constraint("DistanceY", -1, 1, 0, 3, 120.0),
])
doc.recompute()
hole3 = body.newObject("PartDesign::Hole", "Hole002")
hole3.Profile = sketch8
hole3.ThreadType = "None"
hole3.Diameter = 10.8
hole3.DepthType = "ThroughAll"
hole3.Reversed = True

doc.recompute()
